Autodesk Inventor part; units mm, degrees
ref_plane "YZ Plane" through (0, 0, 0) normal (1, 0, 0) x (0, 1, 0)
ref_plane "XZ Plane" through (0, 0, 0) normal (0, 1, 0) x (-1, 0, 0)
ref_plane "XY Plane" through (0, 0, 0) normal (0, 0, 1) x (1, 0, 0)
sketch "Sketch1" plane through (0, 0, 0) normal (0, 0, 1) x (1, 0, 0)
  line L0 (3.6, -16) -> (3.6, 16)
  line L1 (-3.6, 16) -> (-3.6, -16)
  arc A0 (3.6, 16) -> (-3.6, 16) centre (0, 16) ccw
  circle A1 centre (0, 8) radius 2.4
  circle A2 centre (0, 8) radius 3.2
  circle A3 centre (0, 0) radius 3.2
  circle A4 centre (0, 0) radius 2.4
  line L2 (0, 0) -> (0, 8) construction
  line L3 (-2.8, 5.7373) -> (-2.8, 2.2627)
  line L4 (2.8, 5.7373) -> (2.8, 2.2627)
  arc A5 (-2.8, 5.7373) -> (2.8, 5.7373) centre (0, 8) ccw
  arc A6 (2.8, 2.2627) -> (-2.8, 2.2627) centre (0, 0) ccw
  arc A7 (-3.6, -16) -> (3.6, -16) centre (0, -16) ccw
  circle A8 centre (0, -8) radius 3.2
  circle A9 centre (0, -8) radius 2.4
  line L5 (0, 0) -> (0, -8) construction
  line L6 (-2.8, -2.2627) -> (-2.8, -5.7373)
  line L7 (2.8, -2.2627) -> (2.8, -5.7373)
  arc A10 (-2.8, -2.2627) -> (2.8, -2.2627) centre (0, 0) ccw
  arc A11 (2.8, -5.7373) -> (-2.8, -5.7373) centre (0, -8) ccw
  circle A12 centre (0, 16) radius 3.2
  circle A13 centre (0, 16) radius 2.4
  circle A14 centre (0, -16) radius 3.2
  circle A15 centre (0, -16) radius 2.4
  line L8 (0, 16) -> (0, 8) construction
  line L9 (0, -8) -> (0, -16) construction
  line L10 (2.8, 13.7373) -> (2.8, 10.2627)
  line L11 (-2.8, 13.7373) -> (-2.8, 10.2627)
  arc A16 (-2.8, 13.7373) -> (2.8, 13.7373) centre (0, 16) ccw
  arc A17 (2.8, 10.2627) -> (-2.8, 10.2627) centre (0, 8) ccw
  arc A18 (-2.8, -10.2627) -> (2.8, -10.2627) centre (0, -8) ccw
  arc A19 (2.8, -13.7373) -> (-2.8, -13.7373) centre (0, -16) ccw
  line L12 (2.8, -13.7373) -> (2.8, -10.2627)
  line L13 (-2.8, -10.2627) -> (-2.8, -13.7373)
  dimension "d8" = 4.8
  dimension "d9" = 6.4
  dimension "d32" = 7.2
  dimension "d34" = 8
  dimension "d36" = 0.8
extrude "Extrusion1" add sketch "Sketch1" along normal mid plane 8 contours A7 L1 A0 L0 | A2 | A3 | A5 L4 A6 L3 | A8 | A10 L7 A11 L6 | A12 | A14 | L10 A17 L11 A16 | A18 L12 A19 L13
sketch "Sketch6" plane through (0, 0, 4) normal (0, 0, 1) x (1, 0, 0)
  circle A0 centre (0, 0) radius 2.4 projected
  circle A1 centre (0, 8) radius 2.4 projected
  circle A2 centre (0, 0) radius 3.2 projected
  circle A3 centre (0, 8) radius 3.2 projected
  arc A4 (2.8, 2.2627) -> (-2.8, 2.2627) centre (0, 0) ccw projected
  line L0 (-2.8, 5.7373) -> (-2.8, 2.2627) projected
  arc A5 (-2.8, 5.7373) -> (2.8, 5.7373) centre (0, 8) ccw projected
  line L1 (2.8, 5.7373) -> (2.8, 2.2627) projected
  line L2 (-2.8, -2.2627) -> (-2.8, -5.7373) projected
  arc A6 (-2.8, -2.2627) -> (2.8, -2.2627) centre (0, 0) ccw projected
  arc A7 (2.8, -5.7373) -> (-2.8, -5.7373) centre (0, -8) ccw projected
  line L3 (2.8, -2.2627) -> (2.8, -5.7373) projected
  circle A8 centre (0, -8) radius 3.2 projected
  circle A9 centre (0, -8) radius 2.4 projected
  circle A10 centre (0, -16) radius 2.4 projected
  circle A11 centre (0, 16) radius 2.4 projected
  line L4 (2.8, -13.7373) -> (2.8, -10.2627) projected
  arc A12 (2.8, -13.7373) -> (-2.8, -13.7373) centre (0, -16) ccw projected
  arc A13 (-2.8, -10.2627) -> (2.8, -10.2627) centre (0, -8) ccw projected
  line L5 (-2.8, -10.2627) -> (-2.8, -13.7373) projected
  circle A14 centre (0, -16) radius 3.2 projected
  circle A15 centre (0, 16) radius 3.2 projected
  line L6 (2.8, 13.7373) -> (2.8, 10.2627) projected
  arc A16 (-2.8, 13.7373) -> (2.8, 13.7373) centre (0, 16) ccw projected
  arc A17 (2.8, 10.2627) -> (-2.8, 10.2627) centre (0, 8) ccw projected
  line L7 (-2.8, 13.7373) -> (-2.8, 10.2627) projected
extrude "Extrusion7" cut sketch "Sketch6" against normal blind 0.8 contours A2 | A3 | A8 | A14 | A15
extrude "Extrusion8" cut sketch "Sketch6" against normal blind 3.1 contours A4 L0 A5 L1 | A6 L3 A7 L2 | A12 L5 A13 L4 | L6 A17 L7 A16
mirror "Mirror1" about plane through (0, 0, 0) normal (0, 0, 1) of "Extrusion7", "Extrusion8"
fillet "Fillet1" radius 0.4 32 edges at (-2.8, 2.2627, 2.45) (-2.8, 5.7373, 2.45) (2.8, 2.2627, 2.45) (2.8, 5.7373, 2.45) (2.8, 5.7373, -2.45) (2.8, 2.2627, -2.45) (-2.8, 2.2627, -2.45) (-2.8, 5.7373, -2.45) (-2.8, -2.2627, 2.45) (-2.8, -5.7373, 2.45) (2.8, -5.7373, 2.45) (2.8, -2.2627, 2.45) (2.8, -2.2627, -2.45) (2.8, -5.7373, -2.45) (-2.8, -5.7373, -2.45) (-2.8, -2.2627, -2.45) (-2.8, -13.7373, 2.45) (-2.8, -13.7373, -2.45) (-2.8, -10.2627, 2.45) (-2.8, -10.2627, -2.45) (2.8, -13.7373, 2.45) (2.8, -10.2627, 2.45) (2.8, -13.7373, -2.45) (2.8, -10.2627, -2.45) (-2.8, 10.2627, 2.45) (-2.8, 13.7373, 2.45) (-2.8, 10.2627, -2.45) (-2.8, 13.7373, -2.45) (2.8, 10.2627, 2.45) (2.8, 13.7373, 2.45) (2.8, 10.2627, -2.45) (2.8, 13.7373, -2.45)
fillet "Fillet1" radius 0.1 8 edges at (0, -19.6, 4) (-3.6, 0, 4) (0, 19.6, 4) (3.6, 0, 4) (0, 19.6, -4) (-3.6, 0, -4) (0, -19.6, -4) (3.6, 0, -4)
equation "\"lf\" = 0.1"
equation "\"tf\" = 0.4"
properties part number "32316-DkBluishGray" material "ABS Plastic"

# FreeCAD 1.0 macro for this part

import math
import FreeCAD as App
import Part
import Sketcher


def edges_at(feature, points):
    """Names of the edges that pass closest to the given points."""
    edges = feature.Shape.Edges
    near = lambda p: min(range(len(edges)), key=lambda i: edges[i].distToShape(Part.Vertex(*p))[0])
    return sorted({f"Edge{near(p) + 1}" for p in points})

doc = App.newDocument("Part")
body = doc.addObject("PartDesign::Body", "Body")

sketch1 = doc.addObject("Sketcher::SketchObject", "Sketch")
body.addObject(sketch1)
sketch1.AttachmentSupport = (doc.XY_Plane, [""])
sketch1.MapMode = "FlatFace"
sketch1.addGeometry([
    Part.ArcOfCircle(Part.Circle(App.Vector(0, -16, 0), App.Vector(0, 0, 1), 3.6), math.radians(180), math.radians(360)),
    Part.LineSegment(App.Vector(3.6, -16, 0), App.Vector(3.6, 16, 0)),
    Part.ArcOfCircle(Part.Circle(App.Vector(0, 16, 0), App.Vector(0, 0, 1), 3.6), math.radians(0), math.radians(180)),
    Part.LineSegment(App.Vector(-3.6, 16, 0), App.Vector(-3.6, -16, 0)),
    Part.Circle(App.Vector(0, -16, 0), App.Vector(0, 0, 1), 2.4),
    Part.Circle(App.Vector(0, -8, 0), App.Vector(0, 0, 1), 2.4),
    Part.Circle(App.Vector(0, 0, 0), App.Vector(0, 0, 1), 2.4),
    Part.Circle(App.Vector(0, 8, 0), App.Vector(0, 0, 1), 2.4),
    Part.Circle(App.Vector(0, 16, 0), App.Vector(0, 0, 1), 2.4),
], False)
sketch1.addConstraint([
    Sketcher.Constraint("Tangent", 0, 2, 1, 1),
    Sketcher.Constraint("Tangent", 1, 2, 2, 1),
    Sketcher.Constraint("Tangent", 2, 2, 3, 1),
    Sketcher.Constraint("Tangent", 3, 2, 0, 1),
    Sketcher.Constraint("Vertical", 1),
    Sketcher.Constraint("Vertical", 3),
    Sketcher.Constraint("Coincident", 6, 3, -1, 1),
    Sketcher.Constraint("Coincident", 4, 3, 0, 3),
    Sketcher.Constraint("Coincident", 8, 3, 2, 3),
    Sketcher.Constraint("Equal", 4, 5),
    Sketcher.Constraint("Equal", 5, 6),
    Sketcher.Constraint("Equal", 6, 7),
    Sketcher.Constraint("Equal", 7, 8),
    Sketcher.Constraint("Symmetric", 0, 3, 2, 3, -1, 1),
    Sketcher.Constraint("Symmetric", 5, 3, 7, 3, -1, 1),
    Sketcher.Constraint("PointOnObject", 5, 3, -2),
    Sketcher.Constraint("Diameter", 4, 4.8),
    Sketcher.Constraint("Radius", 0, 3.6),
    Sketcher.Constraint("DistanceY", 5, 3, -1, 1, 8.0),
    Sketcher.Constraint("DistanceY", 0, 3, 5, 3, 8.0),
])
pad1 = doc.addObject("PartDesign::Pad", "Pad")
body.addObject(pad1)
pad1.Profile = sketch1
pad1.Length = 8
pad1.Midplane = True

sketch2 = doc.addObject("Sketcher::SketchObject", "Sketch001")
body.addObject(sketch2)
sketch2.AttachmentSupport = (doc.XY_Plane, [""])
sketch2.MapMode = "FlatFace"
sketch2.AttachmentOffset = App.Placement(App.Vector(0, 0, 4), App.Rotation())
sketch2.addGeometry([
    Part.Circle(App.Vector(0, 0, 0), App.Vector(0, 0, 1), 3.2),
    Part.Circle(App.Vector(0, 0, 0), App.Vector(0, 0, 1), 2.4),
    Part.Circle(App.Vector(0, 8, 0), App.Vector(0, 0, 1), 3.2),
    Part.Circle(App.Vector(0, 8, 0), App.Vector(0, 0, 1), 2.4),
    Part.Circle(App.Vector(0, -8, 0), App.Vector(0, 0, 1), 3.2),
    Part.Circle(App.Vector(0, -8, 0), App.Vector(0, 0, 1), 2.4),
    Part.Circle(App.Vector(0, -16, 0), App.Vector(0, 0, 1), 3.2),
    Part.Circle(App.Vector(0, -16, 0), App.Vector(0, 0, 1), 2.4),
    Part.Circle(App.Vector(0, 16, 0), App.Vector(0, 0, 1), 3.2),
    Part.Circle(App.Vector(0, 16, 0), App.Vector(0, 0, 1), 2.4),
], False)
sketch2.addConstraint([
    Sketcher.Constraint("Coincident", 0, 3, -1, 1),
    Sketcher.Constraint("Coincident", 1, 3, -1, 1),
    Sketcher.Constraint("Coincident", 3, 3, 2, 3),
    Sketcher.Constraint("Coincident", 5, 3, 4, 3),
    Sketcher.Constraint("Coincident", 7, 3, 6, 3),
    Sketcher.Constraint("Coincident", 9, 3, 8, 3),
    Sketcher.Constraint("Equal", 0, 2),
    Sketcher.Constraint("Equal", 1, 3),
    Sketcher.Constraint("Equal", 2, 4),
    Sketcher.Constraint("Equal", 3, 5),
    Sketcher.Constraint("Equal", 4, 6),
    Sketcher.Constraint("Equal", 5, 7),
    Sketcher.Constraint("Equal", 6, 8),
    Sketcher.Constraint("Equal", 7, 9),
    Sketcher.Constraint("Symmetric", 2, 3, 4, 3, -1, 1),
    Sketcher.Constraint("Symmetric", 6, 3, 8, 3, -1, 1),
    Sketcher.Constraint("PointOnObject", 2, 3, -2),
    Sketcher.Constraint("PointOnObject", 6, 3, -2),
    Sketcher.Constraint("Diameter", 0, 6.4),
    Sketcher.Constraint("Diameter", 1, 4.8),
    Sketcher.Constraint("DistanceY", -1, 1, 2, 3, 8.0),
    Sketcher.Constraint("DistanceY", 6, 3, -1, 1, 16.0),
])
pocket1 = doc.addObject("PartDesign::Pocket", "Pocket")
body.addObject(pocket1)
pocket1.Profile = sketch2
pocket1.Length = 0.8

sketch3 = doc.addObject("Sketcher::SketchObject", "Sketch002")
body.addObject(sketch3)
sketch3.AttachmentSupport = (doc.XY_Plane, [""])
sketch3.MapMode = "FlatFace"
sketch3.AttachmentOffset = App.Placement(App.Vector(0, 0, 4), App.Rotation())
sketch3.addGeometry([
    Part.ArcOfCircle(Part.Circle(App.Vector(0, 0, 0), App.Vector(0, 0, 1), 3.6), math.radians(39), math.radians(141)),
    Part.LineSegment(App.Vector(2.8, 2.3, 0), App.Vector(2.8, 5.7, 0)),
    Part.ArcOfCircle(Part.Circle(App.Vector(0, 8, 0), App.Vector(0, 0, 1), 3.6), math.radians(-141), math.radians(-39)),
    Part.LineSegment(App.Vector(-2.8, 5.7, 0), App.Vector(-2.8, 2.3, 0)),
    Part.ArcOfCircle(Part.Circle(App.Vector(0, 0, 0), App.Vector(0, 0, 1), 3.6), math.radians(-141), math.radians(-39)),
    Part.LineSegment(App.Vector(-2.8, -2.3, 0), App.Vector(-2.8, -5.7, 0)),
    Part.ArcOfCircle(Part.Circle(App.Vector(0, -8, 0), App.Vector(0, 0, 1), 3.6), math.radians(39), math.radians(141)),
    Part.LineSegment(App.Vector(2.8, -5.7, 0), App.Vector(2.8, -2.3, 0)),
    Part.ArcOfCircle(Part.Circle(App.Vector(0, -16, 0), App.Vector(0, 0, 1), 3.6), math.radians(39), math.radians(141)),
    Part.LineSegment(App.Vector(2.8, -13.7, 0), App.Vector(2.8, -10.3, 0)),
    Part.ArcOfCircle(Part.Circle(App.Vector(0, -8, 0), App.Vector(0, 0, 1), 3.6), math.radians(-141), math.radians(-39)),
    Part.LineSegment(App.Vector(-2.8, -10.3, 0), App.Vector(-2.8, -13.7, 0)),
    Part.LineSegment(App.Vector(2.8, 10.3, 0), App.Vector(2.8, 13.7, 0)),
    Part.ArcOfCircle(Part.Circle(App.Vector(0, 16, 0), App.Vector(0, 0, 1), 3.6), math.radians(-141), math.radians(-39)),
    Part.LineSegment(App.Vector(-2.8, 13.7, 0), App.Vector(-2.8, 10.3, 0)),
    Part.ArcOfCircle(Part.Circle(App.Vector(0, 8, 0), App.Vector(0, 0, 1), 3.6), math.radians(39), math.radians(141)),
], False)
sketch3.addConstraint([
    Sketcher.Constraint("Coincident", 0, 1, 1, 1),
    Sketcher.Constraint("Coincident", 1, 2, 2, 2),
    Sketcher.Constraint("Coincident", 2, 1, 3, 1),
    Sketcher.Constraint("Coincident", 3, 2, 0, 2),
    Sketcher.Constraint("Coincident", 4, 1, 5, 1),
    Sketcher.Constraint("Coincident", 5, 2, 6, 2),
    Sketcher.Constraint("Coincident", 6, 1, 7, 1),
    Sketcher.Constraint("Coincident", 7, 2, 4, 2),
    Sketcher.Constraint("Coincident", 8, 1, 9, 1),
    Sketcher.Constraint("Coincident", 9, 2, 10, 2),
    Sketcher.Constraint("Coincident", 10, 1, 11, 1),
    Sketcher.Constraint("Coincident", 11, 2, 8, 2),
    Sketcher.Constraint("Coincident", 12, 2, 13, 2),
    Sketcher.Constraint("Coincident", 13, 1, 14, 1),
    Sketcher.Constraint("Coincident", 14, 2, 15, 2),
    Sketcher.Constraint("Coincident", 15, 1, 12, 1),
    Sketcher.Constraint("Vertical", 1),
    Sketcher.Constraint("Vertical", 3),
    Sketcher.Constraint("Vertical", 5),
    Sketcher.Constraint("Vertical", 7),
    Sketcher.Constraint("Vertical", 9),
    Sketcher.Constraint("Vertical", 11),
    Sketcher.Constraint("Vertical", 12),
    Sketcher.Constraint("Vertical", 14),
    Sketcher.Constraint("Coincident", 0, 3, -1, 1),
    Sketcher.Constraint("Coincident", 4, 3, -1, 1),
    Sketcher.Constraint("Coincident", 10, 3, 6, 3),
    Sketcher.Constraint("Coincident", 15, 3, 2, 3),
    Sketcher.Constraint("Equal", 0, 2),
    Sketcher.Constraint("Equal", 2, 4),
    Sketcher.Constraint("Equal", 4, 6),
    Sketcher.Constraint("Equal", 6, 8),
    Sketcher.Constraint("Equal", 8, 10),
    Sketcher.Constraint("Equal", 10, 13),
    Sketcher.Constraint("Equal", 13, 15),
    Sketcher.Constraint("Symmetric", 2, 3, 6, 3, -1, 1),
    Sketcher.Constraint("Symmetric", 8, 3, 13, 3, -1, 1),
    Sketcher.Constraint("Symmetric", 1, 2, 2, 1, -2),
    Sketcher.Constraint("Symmetric", 8, 1, 11, 2, -2),
    Sketcher.Constraint("Horizontal", 5, 2, 6, 1),
    Sketcher.Constraint("Horizontal", 12, 2, 13, 1),
    Sketcher.Constraint("Vertical", 3, 2, 4, 1),
    Sketcher.Constraint("Vertical", 7, 2, 8, 1),
    Sketcher.Constraint("Vertical", 9, 2, 12, 2),
    Sketcher.Constraint("Equal", 7, 9),
    Sketcher.Constraint("Radius", 0, 3.6),
    Sketcher.Constraint("DistanceY", -1, 1, 2, 3, 8.0),
    Sketcher.Constraint("DistanceX", -1, 1, 0, 1, 2.8),
])
pocket2 = doc.addObject("PartDesign::Pocket", "Pocket001")
body.addObject(pocket2)
pocket2.Profile = sketch3
pocket2.Length = 3.1
doc.recompute()

mirrored = doc.addObject("PartDesign::Mirrored", "Mirrored")
body.addObject(mirrored)
mirrored.Originals = [pocket1, pocket2]
mirrored.MirrorPlane = (doc.XY_Plane, [""])
body.Tip = mirrored
doc.recompute()

fillet = doc.addObject("PartDesign::Fillet", "Fillet")
body.addObject(fillet)
fillet.Base = (mirrored, edges_at(mirrored, [
    (-2.8, 2.263, 2.45),
    (-2.8, 5.737, 2.45),
    (2.8, 2.263, 2.45),
    (2.8, 5.737, 2.45),
    (2.8, 5.737, -2.45),
    (2.8, 2.263, -2.45),
    (-2.8, 2.263, -2.45),
    (-2.8, 5.737, -2.45),
    (-2.8, -2.263, 2.45),
    (-2.8, -5.737, 2.45),
    (2.8, -5.737, 2.45),
    (2.8, -2.263, 2.45),
    (2.8, -2.263, -2.45),
    (2.8, -5.737, -2.45),
    (-2.8, -5.737, -2.45),
    (-2.8, -2.263, -2.45),
    (-2.8, -13.737, 2.45),
    (-2.8, -13.737, -2.45),
    (-2.8, -10.263, 2.45),
    (-2.8, -10.263, -2.45),
    (2.8, -13.737, 2.45),
    (2.8, -10.263, 2.45),
    (2.8, -13.737, -2.45),
    (2.8, -10.263, -2.45),
    (-2.8, 10.263, 2.45),
    (-2.8, 13.737, 2.45),
    (-2.8, 10.263, -2.45),
    (-2.8, 13.737, -2.45),
    (2.8, 10.263, 2.45),
    (2.8, 13.737, 2.45),
    (2.8, 10.263, -2.45),
    (2.8, 13.737, -2.45),
]))
fillet.Radius = 0.4
doc.recompute()

fillet2 = doc.addObject("PartDesign::Fillet", "Fillet001")
body.addObject(fillet2)
fillet2.Base = (fillet, edges_at(fillet, [
    (0, -19.6, 4),
    (-3.6, 0, 4),
    (0, 19.6, 4),
    (3.6, 0, 4),
    (0, 19.6, -4),
    (-3.6, 0, -4),
    (0, -19.6, -4),
    (3.6, 0, -4),
]))
fillet2.Radius = 0.1

doc.recompute()
